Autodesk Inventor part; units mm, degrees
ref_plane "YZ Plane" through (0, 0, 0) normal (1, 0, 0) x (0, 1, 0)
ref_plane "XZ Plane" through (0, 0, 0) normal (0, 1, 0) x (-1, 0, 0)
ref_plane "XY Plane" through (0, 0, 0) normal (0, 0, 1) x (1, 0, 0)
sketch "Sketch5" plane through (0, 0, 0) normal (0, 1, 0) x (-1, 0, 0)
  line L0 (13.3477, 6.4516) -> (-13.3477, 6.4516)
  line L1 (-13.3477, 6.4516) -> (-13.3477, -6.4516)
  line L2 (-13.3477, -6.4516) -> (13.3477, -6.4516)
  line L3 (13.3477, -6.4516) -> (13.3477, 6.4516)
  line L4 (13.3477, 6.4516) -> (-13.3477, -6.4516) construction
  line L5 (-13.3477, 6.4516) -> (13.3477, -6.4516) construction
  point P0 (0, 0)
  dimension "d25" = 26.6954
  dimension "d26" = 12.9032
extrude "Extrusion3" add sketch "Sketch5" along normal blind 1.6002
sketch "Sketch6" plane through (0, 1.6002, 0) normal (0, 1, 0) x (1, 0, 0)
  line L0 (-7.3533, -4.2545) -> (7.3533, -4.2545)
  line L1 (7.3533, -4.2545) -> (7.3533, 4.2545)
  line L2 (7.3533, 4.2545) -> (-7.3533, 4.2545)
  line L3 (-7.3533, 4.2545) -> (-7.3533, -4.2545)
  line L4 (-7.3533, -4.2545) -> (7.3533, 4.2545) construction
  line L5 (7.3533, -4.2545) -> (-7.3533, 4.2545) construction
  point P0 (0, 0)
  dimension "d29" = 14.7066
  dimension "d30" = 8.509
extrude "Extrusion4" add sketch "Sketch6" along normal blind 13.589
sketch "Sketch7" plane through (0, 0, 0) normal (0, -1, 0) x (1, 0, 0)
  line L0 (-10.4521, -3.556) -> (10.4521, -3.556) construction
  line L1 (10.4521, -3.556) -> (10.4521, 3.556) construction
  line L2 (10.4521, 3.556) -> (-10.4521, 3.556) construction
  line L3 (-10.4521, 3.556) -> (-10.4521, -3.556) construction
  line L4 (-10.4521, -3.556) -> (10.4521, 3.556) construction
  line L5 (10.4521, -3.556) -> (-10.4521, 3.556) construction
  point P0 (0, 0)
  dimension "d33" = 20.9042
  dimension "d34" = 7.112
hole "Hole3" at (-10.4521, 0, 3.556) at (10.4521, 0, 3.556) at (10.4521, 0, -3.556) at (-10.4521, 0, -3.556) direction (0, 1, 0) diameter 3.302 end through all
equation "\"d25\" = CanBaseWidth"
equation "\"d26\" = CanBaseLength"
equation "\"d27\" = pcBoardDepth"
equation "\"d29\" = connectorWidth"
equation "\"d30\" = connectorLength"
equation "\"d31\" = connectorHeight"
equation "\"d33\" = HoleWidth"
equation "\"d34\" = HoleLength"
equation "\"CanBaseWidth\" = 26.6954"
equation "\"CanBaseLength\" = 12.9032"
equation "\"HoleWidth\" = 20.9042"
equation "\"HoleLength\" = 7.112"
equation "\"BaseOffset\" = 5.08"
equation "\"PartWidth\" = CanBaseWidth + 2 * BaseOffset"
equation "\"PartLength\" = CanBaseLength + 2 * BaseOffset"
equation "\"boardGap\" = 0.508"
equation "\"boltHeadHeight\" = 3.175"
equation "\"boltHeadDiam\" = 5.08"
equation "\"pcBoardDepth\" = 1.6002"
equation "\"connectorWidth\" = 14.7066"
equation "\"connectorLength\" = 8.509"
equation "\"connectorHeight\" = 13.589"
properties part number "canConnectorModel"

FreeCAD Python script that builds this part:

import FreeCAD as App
import Part
import Sketcher
Q = App.Units.Quantity


def add_polygon(sketch, points):
    """Adds a closed chain of lines whose ends are joined by coincident constraints."""
    first, n = sketch.GeometryCount, len(points)
    for a, b in zip(points, points[1:] + points[:1]):
        sketch.addGeometry(Part.LineSegment(App.Vector(*a, 0), App.Vector(*b, 0)), False)
    for i in range(n):
        sketch.addConstraint(Sketcher.Constraint("Coincident", first + i, 2, first + (i + 1) % n, 1))

doc = App.newDocument("Part")
body = doc.addObject("PartDesign::Body", "Body")

sketch1 = body.newObject("Sketcher::SketchObject", "Sketch")
sketch1.AttachmentSupport = (doc.getObject("XZ_Plane"), [""])
sketch1.MapMode = "FlatFace"
add_polygon(sketch1, [(-13.3477, -6.4516), (-13.3477, 6.4516), (13.3477, 6.4516), (13.3477, -6.4516)])
sketch1.addConstraint([
    Sketcher.Constraint("Vertical", 0),
    Sketcher.Constraint("Horizontal", 1),
    Sketcher.Constraint("Vertical", 2),
    Sketcher.Constraint("Horizontal", 3),
    Sketcher.Constraint("Symmetric", 0, 2, 2, 2, -1, 1),
    Sketcher.Constraint("DistanceX", 1, 1, 1, 2, Q("1.051 in")),
    Sketcher.Constraint("DistanceY", 0, 1, 0, 2, Q("0.508 in")),
])
pad1 = body.newObject("PartDesign::Pad", "Pad")
pad1.Profile = sketch1
pad1.Length = Q("0.063 in")
pad1.Reversed = True

sketch2 = body.newObject("Sketcher::SketchObject", "Sketch001")
sketch2.AttachmentSupport = (doc.getObject("XZ_Plane"), [""])
sketch2.MapMode = "FlatFace"
sketch2.AttachmentOffset = App.Placement(App.Vector(0, 0, -0.063 * 25.4), App.Rotation())
add_polygon(sketch2, [(-7.3533, -4.2545), (-7.3533, 4.2545), (7.3533, 4.2545), (7.3533, -4.2545)])
sketch2.addConstraint([
    Sketcher.Constraint("Vertical", 0),
    Sketcher.Constraint("Horizontal", 1),
    Sketcher.Constraint("Vertical", 2),
    Sketcher.Constraint("Horizontal", 3),
    Sketcher.Constraint("Symmetric", 0, 2, 2, 2, -1, 1),
    Sketcher.Constraint("DistanceX", 1, 1, 1, 2, Q("0.579 in")),
    Sketcher.Constraint("DistanceY", 0, 1, 0, 2, Q("0.335 in")),
])
pad2 = body.newObject("PartDesign::Pad", "Pad001")
pad2.Profile = sketch2
pad2.Length = Q("0.535 in")
pad2.Reversed = True

sketch3 = body.newObject("Sketcher::SketchObject", "Sketch002")
sketch3.AttachmentSupport = (doc.getObject("XZ_Plane"), [""])
sketch3.MapMode = "FlatFace"
sketch3.addGeometry([
    Part.Circle(App.Vector(-10.4521, 3.556, 0), App.Vector(0, 0, 1), 1.651),
    Part.Circle(App.Vector(10.4521, 3.556, 0), App.Vector(0, 0, 1), 1.651),
    Part.Circle(App.Vector(10.4521, -3.556, 0), App.Vector(0, 0, 1), 1.651),
    Part.Circle(App.Vector(-10.4521, -3.556, 0), App.Vector(0, 0, 1), 1.651),
], False)
sketch3.addConstraint([
    Sketcher.Constraint("Equal", 0, 1),
    Sketcher.Constraint("Equal", 1, 2),
    Sketcher.Constraint("Equal", 2, 3),
    Sketcher.Constraint("Symmetric", 0, 3, 2, 3, -1, 1),
    Sketcher.Constraint("Symmetric", 1, 3, 3, 3, -1, 1),
    Sketcher.Constraint("Symmetric", 0, 3, 1, 3, -2),
    Sketcher.Constraint("Diameter", 0, Q("0.13 in")),
    Sketcher.Constraint("DistanceY", -1, 1, 0, 3, Q("0.14 in")),
    Sketcher.Constraint("DistanceX", 0, 3, 1, 3, Q("0.823 in")),
])
doc.recompute()
hole = body.newObject("PartDesign::Hole", "Hole")
hole.Profile = sketch3
hole.ThreadType = "None"
hole.Diameter = Q("0.13 in")
hole.DepthType = "ThroughAll"

doc.recompute()
